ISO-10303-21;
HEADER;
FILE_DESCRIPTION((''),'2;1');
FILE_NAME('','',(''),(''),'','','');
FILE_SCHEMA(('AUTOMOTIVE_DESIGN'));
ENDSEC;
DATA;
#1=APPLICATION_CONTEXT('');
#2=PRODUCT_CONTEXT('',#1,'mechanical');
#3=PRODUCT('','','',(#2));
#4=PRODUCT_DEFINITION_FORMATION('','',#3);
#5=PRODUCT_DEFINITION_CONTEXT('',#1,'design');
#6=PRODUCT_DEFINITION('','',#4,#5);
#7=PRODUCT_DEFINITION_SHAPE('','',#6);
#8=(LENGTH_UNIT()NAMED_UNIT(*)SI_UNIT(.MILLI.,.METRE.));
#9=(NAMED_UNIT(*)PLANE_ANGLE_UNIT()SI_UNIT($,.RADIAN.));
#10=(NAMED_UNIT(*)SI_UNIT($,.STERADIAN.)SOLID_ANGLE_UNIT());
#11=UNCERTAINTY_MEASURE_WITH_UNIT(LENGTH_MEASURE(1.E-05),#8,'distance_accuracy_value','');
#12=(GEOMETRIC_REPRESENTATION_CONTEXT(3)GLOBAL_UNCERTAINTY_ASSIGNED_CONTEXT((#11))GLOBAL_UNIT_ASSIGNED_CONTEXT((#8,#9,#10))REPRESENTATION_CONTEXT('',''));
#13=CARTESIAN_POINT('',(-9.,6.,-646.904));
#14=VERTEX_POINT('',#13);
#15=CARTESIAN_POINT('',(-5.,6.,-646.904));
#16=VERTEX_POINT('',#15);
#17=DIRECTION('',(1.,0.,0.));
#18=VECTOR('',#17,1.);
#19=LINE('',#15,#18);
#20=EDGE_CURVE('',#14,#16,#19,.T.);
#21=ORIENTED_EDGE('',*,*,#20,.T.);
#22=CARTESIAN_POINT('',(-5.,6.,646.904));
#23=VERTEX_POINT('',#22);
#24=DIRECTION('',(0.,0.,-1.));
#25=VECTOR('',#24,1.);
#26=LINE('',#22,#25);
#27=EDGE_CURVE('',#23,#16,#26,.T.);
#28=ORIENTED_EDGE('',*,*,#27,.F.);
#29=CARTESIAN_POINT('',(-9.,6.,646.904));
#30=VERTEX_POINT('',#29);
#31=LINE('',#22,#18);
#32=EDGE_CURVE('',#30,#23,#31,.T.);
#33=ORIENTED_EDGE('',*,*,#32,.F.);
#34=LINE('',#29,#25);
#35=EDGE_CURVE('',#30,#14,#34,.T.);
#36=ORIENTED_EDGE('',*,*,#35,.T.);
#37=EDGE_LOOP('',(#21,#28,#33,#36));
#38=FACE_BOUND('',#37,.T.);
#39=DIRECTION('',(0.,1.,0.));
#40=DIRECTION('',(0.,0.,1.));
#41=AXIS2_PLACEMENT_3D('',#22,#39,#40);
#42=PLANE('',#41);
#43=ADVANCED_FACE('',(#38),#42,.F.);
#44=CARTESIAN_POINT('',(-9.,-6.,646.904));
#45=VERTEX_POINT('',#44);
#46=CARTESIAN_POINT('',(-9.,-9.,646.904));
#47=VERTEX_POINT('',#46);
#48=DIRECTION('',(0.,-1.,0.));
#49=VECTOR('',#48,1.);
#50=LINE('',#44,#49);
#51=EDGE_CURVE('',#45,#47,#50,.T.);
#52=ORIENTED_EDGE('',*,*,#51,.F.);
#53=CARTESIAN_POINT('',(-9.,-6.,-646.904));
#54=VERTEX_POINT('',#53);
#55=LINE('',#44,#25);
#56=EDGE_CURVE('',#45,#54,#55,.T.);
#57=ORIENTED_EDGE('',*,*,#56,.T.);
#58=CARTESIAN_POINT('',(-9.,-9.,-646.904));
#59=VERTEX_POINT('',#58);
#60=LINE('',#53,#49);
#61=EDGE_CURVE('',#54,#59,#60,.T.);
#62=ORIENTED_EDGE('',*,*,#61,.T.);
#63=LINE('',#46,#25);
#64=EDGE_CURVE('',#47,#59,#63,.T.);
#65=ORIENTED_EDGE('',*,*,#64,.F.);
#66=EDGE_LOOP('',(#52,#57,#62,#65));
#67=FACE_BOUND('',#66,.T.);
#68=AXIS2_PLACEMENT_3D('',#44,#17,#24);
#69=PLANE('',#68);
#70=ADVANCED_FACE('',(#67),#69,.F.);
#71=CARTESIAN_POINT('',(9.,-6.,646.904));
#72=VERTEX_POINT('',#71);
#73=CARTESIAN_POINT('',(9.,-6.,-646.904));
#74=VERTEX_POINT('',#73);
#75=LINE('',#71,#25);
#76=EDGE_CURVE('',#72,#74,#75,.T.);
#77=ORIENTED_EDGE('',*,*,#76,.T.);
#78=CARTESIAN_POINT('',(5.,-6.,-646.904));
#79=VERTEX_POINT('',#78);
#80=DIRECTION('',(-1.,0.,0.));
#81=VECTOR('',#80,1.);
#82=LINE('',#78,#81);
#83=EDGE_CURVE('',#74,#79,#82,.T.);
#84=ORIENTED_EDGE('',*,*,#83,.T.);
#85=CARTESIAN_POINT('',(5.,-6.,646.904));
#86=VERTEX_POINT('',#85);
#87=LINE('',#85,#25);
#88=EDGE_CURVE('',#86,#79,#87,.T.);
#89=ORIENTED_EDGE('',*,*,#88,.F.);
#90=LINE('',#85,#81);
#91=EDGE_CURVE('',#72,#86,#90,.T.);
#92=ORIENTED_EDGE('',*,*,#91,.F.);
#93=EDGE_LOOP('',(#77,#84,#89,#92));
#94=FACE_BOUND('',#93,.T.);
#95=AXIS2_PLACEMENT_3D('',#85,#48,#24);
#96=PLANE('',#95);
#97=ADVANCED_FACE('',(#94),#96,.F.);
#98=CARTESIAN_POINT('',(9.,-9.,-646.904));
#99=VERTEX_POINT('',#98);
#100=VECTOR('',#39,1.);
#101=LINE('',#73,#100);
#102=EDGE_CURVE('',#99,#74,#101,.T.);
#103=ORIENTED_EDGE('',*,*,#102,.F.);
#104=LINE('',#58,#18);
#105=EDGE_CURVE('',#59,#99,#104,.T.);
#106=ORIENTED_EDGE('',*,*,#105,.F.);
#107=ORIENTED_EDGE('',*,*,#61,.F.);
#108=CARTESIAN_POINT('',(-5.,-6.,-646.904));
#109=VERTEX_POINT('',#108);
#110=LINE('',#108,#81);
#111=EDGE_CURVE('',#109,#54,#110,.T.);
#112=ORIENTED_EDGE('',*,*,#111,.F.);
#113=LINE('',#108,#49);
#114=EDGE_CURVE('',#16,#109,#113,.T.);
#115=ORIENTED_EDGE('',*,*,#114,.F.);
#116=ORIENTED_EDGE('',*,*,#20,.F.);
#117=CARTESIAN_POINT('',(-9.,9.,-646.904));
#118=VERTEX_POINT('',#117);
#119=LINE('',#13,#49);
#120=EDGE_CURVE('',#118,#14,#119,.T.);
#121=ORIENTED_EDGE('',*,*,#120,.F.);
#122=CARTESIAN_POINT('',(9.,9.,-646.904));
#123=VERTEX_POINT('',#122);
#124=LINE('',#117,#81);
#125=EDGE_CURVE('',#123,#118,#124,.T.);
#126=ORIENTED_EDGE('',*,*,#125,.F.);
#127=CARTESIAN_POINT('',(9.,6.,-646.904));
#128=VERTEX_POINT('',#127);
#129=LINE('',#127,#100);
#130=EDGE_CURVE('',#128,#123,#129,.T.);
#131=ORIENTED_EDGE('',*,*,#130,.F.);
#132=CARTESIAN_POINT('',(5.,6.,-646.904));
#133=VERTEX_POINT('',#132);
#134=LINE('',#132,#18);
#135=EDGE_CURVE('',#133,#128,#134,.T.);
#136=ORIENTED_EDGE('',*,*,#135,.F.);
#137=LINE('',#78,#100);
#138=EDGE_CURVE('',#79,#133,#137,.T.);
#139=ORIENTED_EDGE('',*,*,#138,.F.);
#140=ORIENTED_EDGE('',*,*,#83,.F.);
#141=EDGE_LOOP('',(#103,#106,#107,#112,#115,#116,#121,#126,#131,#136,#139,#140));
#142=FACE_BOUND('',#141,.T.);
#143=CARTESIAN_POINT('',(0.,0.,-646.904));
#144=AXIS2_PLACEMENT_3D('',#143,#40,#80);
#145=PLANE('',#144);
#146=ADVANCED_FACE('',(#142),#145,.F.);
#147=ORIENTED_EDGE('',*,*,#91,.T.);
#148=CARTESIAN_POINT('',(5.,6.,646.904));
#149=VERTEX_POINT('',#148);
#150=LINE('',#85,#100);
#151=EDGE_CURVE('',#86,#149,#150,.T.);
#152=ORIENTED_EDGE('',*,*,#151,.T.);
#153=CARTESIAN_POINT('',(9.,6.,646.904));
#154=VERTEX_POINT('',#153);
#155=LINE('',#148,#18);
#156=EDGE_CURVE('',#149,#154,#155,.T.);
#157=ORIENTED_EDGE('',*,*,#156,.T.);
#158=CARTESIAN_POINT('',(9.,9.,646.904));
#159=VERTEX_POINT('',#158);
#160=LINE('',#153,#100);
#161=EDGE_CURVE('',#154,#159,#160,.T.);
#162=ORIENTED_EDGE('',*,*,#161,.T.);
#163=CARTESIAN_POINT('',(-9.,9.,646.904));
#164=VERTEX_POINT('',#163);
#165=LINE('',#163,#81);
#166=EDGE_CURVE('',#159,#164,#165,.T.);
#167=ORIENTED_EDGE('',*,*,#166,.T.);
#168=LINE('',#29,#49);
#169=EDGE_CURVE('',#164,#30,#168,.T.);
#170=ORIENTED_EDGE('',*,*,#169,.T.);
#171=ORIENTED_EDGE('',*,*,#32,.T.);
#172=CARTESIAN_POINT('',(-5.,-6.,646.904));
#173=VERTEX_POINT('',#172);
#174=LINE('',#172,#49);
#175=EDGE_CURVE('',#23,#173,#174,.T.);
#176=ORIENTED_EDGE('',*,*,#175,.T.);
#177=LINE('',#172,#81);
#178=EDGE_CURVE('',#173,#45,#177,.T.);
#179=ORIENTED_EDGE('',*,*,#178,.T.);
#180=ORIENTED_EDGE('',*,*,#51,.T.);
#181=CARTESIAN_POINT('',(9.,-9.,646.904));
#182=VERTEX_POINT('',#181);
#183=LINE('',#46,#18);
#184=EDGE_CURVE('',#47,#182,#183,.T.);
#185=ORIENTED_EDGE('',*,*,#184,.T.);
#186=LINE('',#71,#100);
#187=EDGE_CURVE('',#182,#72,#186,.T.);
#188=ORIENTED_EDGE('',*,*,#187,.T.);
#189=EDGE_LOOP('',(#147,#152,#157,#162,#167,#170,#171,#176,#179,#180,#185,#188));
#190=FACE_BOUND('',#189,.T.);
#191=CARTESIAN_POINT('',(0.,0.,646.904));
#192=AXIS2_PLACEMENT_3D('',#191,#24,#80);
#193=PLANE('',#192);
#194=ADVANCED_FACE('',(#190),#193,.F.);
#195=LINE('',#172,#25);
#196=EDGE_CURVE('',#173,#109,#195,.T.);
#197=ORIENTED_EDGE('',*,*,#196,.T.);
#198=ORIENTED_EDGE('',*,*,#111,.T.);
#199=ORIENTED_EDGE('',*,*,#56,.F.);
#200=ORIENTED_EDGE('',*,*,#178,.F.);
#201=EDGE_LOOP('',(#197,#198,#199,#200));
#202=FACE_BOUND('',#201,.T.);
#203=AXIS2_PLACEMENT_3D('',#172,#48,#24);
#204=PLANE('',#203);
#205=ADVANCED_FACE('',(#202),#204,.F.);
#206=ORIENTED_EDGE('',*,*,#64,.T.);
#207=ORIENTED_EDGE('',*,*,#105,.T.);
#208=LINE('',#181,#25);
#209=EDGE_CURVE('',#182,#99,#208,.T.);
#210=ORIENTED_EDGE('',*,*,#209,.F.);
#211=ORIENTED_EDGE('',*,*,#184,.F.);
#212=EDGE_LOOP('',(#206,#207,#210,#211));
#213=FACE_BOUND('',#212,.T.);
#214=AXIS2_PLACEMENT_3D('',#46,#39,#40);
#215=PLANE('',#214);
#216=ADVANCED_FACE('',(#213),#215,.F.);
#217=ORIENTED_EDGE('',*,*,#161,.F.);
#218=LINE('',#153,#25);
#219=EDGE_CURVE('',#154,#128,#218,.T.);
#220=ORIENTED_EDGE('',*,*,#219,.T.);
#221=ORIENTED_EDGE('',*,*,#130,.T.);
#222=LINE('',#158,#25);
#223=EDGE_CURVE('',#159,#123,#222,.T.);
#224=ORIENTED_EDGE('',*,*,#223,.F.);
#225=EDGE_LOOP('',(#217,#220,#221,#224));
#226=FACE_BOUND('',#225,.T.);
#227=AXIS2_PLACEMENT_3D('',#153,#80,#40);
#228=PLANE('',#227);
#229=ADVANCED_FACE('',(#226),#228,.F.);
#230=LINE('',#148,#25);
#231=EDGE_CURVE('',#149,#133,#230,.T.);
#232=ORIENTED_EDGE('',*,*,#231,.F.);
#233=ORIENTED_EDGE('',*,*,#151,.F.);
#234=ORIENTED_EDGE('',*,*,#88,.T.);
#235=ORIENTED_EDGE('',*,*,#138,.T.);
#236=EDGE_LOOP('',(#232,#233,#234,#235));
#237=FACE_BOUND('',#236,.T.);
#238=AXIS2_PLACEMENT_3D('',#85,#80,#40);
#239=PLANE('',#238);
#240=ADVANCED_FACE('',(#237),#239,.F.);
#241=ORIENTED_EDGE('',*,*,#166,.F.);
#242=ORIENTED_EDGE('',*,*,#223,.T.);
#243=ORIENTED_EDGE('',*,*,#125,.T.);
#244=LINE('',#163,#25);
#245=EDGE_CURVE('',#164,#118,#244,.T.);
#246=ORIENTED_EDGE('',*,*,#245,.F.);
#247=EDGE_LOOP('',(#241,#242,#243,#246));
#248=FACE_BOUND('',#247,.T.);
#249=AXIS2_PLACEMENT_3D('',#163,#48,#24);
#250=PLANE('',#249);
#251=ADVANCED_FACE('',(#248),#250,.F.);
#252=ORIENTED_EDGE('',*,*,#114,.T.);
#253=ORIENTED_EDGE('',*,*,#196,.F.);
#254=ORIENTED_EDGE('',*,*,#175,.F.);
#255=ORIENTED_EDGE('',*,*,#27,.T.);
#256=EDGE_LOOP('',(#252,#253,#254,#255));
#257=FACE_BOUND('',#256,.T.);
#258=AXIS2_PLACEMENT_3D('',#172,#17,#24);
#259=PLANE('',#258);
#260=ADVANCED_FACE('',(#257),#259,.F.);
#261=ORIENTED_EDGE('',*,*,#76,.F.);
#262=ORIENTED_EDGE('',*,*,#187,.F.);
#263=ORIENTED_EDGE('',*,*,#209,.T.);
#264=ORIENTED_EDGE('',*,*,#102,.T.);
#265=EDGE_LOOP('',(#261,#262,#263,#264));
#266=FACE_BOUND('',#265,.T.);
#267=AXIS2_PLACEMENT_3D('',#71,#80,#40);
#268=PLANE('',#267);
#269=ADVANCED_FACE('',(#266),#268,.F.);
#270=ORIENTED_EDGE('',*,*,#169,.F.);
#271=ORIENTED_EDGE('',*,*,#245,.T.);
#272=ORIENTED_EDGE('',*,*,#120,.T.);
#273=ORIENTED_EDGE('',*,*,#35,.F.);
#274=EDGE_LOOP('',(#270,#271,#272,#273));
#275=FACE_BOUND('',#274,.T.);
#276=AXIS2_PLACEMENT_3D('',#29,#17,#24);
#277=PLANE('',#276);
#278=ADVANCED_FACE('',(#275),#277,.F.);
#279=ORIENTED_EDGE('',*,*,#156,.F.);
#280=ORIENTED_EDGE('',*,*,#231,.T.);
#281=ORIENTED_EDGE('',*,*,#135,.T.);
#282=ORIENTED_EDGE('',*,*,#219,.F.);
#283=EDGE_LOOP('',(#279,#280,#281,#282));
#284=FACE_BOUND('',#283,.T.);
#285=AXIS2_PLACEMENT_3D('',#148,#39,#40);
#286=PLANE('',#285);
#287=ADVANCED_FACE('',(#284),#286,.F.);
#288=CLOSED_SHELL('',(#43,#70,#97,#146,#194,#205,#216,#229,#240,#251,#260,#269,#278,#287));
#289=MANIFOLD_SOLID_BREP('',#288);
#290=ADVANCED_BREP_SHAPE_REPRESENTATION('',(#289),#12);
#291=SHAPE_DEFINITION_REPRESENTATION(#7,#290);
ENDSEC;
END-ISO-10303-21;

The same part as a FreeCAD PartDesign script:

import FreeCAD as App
import Part
import Sketcher

V = App.Vector

doc = App.newDocument("Part")
body = doc.addObject("PartDesign::Body", "Body")

sketch1 = body.newObject("Sketcher::SketchObject", "Sketch")
sketch1.AttachmentSupport = (doc.getObject("XY_Plane"), [""])
sketch1.MapMode = "FlatFace"
sketch1.addGeometry(Part.LineSegment(V(-5, 6, 0), V(-5, -6, 0)), False)
sketch1.addGeometry(Part.LineSegment(V(-5, -6, 0), V(-9, -6, 0)), False)
sketch1.addGeometry(Part.LineSegment(V(-9, -6, 0), V(-9, -9, 0)), False)
sketch1.addGeometry(Part.LineSegment(V(-9, -9, 0), V(9, -9, 0)), False)
sketch1.addGeometry(Part.LineSegment(V(9, -9, 0), V(9, -6, 0)), False)
sketch1.addGeometry(Part.LineSegment(V(9, -6, 0), V(5, -6, 0)), False)
sketch1.addGeometry(Part.LineSegment(V(5, -6, 0), V(5, 6, 0)), False)
sketch1.addGeometry(Part.LineSegment(V(5, 6, 0), V(9, 6, 0)), False)
sketch1.addGeometry(Part.LineSegment(V(9, 6, 0), V(9, 9, 0)), False)
sketch1.addGeometry(Part.LineSegment(V(9, 9, 0), V(-9, 9, 0)), False)
sketch1.addGeometry(Part.LineSegment(V(-9, 9, 0), V(-9, 6, 0)), False)
sketch1.addGeometry(Part.LineSegment(V(-9, 6, 0), V(-5, 6, 0)), False)
sketch1.addConstraint(Sketcher.Constraint("Coincident", 0, 2, 1, 1))
sketch1.addConstraint(Sketcher.Constraint("Coincident", 1, 2, 2, 1))
sketch1.addConstraint(Sketcher.Constraint("Coincident", 2, 2, 3, 1))
sketch1.addConstraint(Sketcher.Constraint("Coincident", 3, 2, 4, 1))
sketch1.addConstraint(Sketcher.Constraint("Coincident", 4, 2, 5, 1))
sketch1.addConstraint(Sketcher.Constraint("Coincident", 5, 2, 6, 1))
sketch1.addConstraint(Sketcher.Constraint("Coincident", 6, 2, 7, 1))
sketch1.addConstraint(Sketcher.Constraint("Coincident", 7, 2, 8, 1))
sketch1.addConstraint(Sketcher.Constraint("Coincident", 8, 2, 9, 1))
sketch1.addConstraint(Sketcher.Constraint("Coincident", 9, 2, 10, 1))
sketch1.addConstraint(Sketcher.Constraint("Coincident", 10, 2, 11, 1))
sketch1.addConstraint(Sketcher.Constraint("Coincident", 11, 2, 0, 1))
sketch1.addConstraint(Sketcher.Constraint("Vertical", 0))
sketch1.addConstraint(Sketcher.Constraint("Horizontal", 1))
sketch1.addConstraint(Sketcher.Constraint("Vertical", 2))
sketch1.addConstraint(Sketcher.Constraint("Horizontal", 3))
sketch1.addConstraint(Sketcher.Constraint("Vertical", 4))
sketch1.addConstraint(Sketcher.Constraint("Horizontal", 5))
sketch1.addConstraint(Sketcher.Constraint("Vertical", 6))
sketch1.addConstraint(Sketcher.Constraint("Horizontal", 7))
sketch1.addConstraint(Sketcher.Constraint("Vertical", 8))
sketch1.addConstraint(Sketcher.Constraint("Horizontal", 9))
sketch1.addConstraint(Sketcher.Constraint("Vertical", 10))
sketch1.addConstraint(Sketcher.Constraint("Horizontal", 11))
sketch1.addConstraint(Sketcher.Constraint("Symmetric", 0, 2, 6, 2, -1, 1))
sketch1.addConstraint(Sketcher.Constraint("Symmetric", 2, 2, 8, 2, -1, 1))
sketch1.addConstraint(Sketcher.Constraint("Symmetric", 4, 2, 10, 2, -1, 1))
sketch1.addConstraint(Sketcher.Constraint("Symmetric", 1, 2, 4, 2, -2))
sketch1.addConstraint(Sketcher.Constraint("DistanceX", 1, 2, 1, 1, 4.0))
sketch1.addConstraint(Sketcher.Constraint("DistanceX", 3, 1, 3, 2, 18.0))
sketch1.addConstraint(Sketcher.Constraint("DistanceY", 0, 2, 0, 1, 12.0))
sketch1.addConstraint(Sketcher.Constraint("DistanceY", 2, 2, 2, 1, 3.0))
pad1 = body.newObject("PartDesign::Pad", "Pad")
pad1.Profile = sketch1
pad1.Length = 646.904
body2 = doc.addObject("PartDesign::Body", "Body001")
doc.recompute()

body2.BaseFeature = body
doc.recompute()

mirroring = doc.addObject("Part::Mirroring", "Mirroring")
mirroring.Source = body
mirroring.Base = V(0, 0, 0)
mirroring.Normal = V(0, 0, -1)
body3 = doc.addObject("PartDesign::Body", "Body002")
body3.BaseFeature = mirroring
boolean = body2.newObject("PartDesign::Boolean", "Boolean")
boolean.Type = "Fuse"
boolean.addObjects([body3])
doc.recompute()
mirroring.Visibility = False

doc.recompute()
